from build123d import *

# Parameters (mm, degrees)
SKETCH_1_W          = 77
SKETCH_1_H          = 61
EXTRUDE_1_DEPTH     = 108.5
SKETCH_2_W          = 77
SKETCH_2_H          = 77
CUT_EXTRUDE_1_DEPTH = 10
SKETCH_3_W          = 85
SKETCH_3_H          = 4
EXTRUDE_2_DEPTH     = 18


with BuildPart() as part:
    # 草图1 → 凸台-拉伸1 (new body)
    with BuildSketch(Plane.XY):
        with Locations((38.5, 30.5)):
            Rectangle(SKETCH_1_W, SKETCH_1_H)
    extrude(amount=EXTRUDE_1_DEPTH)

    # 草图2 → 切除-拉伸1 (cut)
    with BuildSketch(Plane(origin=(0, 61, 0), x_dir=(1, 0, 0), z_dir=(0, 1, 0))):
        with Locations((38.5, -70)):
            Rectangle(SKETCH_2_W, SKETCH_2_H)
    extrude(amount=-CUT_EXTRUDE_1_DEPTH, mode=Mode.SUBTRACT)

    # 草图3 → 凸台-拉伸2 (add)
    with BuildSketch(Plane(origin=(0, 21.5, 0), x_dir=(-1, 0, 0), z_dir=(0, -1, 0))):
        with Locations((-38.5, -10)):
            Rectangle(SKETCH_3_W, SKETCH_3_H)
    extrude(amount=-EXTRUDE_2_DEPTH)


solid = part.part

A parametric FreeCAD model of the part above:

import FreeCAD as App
import Part
import Sketcher

V = App.Vector
Q = App.Units.Quantity

doc = App.newDocument("Part")
body = doc.addObject("PartDesign::Body", "Body")

sketch1 = doc.addObject("Sketcher::SketchObject", "Sketch")
body.addObject(sketch1)
sketch1.AttachmentSupport = (doc.XY_Plane, [""])
sketch1.MapMode = "FlatFace"
sketch1.addGeometry([
    Part.LineSegment(V(0, 61, 0), V(0, 0, 0)),
    Part.LineSegment(V(0, 0, 0), V(77, 0, 0)),
    Part.LineSegment(V(77, 0, 0), V(77, 61, 0)),
    Part.LineSegment(V(77, 61, 0), V(0, 61, 0)),
], False)
sketch1.addConstraint([
    Sketcher.Constraint("Coincident", 0, 2, 1, 1),
    Sketcher.Constraint("Coincident", 1, 2, 2, 1),
    Sketcher.Constraint("Coincident", 2, 2, 3, 1),
    Sketcher.Constraint("Coincident", 3, 2, 0, 1),
    Sketcher.Constraint("Vertical", 0),
    Sketcher.Constraint("Horizontal", 1),
    Sketcher.Constraint("Vertical", 2),
    Sketcher.Constraint("Horizontal", 3),
    Sketcher.Constraint("Coincident", 0, 2, -1, 1),
    Sketcher.Constraint("DistanceX", 1, 1, 1, 2, Q("77 mm")),
    Sketcher.Constraint("DistanceY", 0, 2, 0, 1, Q("61 mm")),
])
pad1 = doc.addObject("PartDesign::Pad", "Pad")
body.addObject(pad1)
pad1.Profile = sketch1
pad1.Length = 108.5

sketch2 = doc.addObject("Sketcher::SketchObject", "Sketch001")
body.addObject(sketch2)
sketch2.AttachmentSupport = (doc.XZ_Plane, [""])
sketch2.MapMode = "FlatFace"
sketch2.AttachmentOffset = App.Placement(V(0, 0, -61), App.Rotation())
sketch2.addGeometry([
    Part.LineSegment(V(0, 31.5, 0), V(0, 108.5, 0)),
    Part.LineSegment(V(0, 108.5, 0), V(77, 108.5, 0)),
    Part.LineSegment(V(77, 108.5, 0), V(77, 31.5, 0)),
    Part.LineSegment(V(77, 31.5, 0), V(0, 31.5, 0)),
], False)
sketch2.addConstraint([
    Sketcher.Constraint("Coincident", 0, 2, 1, 1),
    Sketcher.Constraint("Coincident", 1, 2, 2, 1),
    Sketcher.Constraint("Coincident", 2, 2, 3, 1),
    Sketcher.Constraint("Coincident", 3, 2, 0, 1),
    Sketcher.Constraint("Vertical", 0),
    Sketcher.Constraint("Horizontal", 1),
    Sketcher.Constraint("Vertical", 2),
    Sketcher.Constraint("Horizontal", 3),
    Sketcher.Constraint("PointOnObject", 0, 2, -2),
    Sketcher.Constraint("Equal", 3, 0),
    Sketcher.Constraint("DistanceX", 1, 1, 1, 2, Q("77 mm")),
    Sketcher.Constraint("DistanceY", -1, 1, 0, 2, Q("108.5 mm")),
])
pocket1 = doc.addObject("PartDesign::Pocket", "Pocket")
body.addObject(pocket1)
pocket1.Profile = sketch2
pocket1.Length = 10
pocket1.Reversed = True

sketch3 = doc.addObject("Sketcher::SketchObject", "Sketch002")
body.addObject(sketch3)
sketch3.AttachmentSupport = (doc.XZ_Plane, [""])
sketch3.MapMode = "FlatFace"
sketch3.AttachmentOffset = App.Placement(V(0, 0, -21.5), App.Rotation())
sketch3.addGeometry([
    Part.LineSegment(V(81, 8, 0), V(81, 12, 0)),
    Part.LineSegment(V(81, 12, 0), V(-4, 12, 0)),
    Part.LineSegment(V(-4, 12, 0), V(-4, 8, 0)),
    Part.LineSegment(V(-4, 8, 0), V(81, 8, 0)),
], False)
sketch3.addConstraint([
    Sketcher.Constraint("Coincident", 0, 2, 1, 1),
    Sketcher.Constraint("Coincident", 1, 2, 2, 1),
    Sketcher.Constraint("Coincident", 2, 2, 3, 1),
    Sketcher.Constraint("Coincident", 3, 2, 0, 1),
    Sketcher.Constraint("Vertical", 0),
    Sketcher.Constraint("Horizontal", 1),
    Sketcher.Constraint("Vertical", 2),
    Sketcher.Constraint("Horizontal", 3),
    Sketcher.Constraint("DistanceX", 1, 2, 1, 1, Q("85 mm")),
    Sketcher.Constraint("DistanceY", 0, 1, 0, 2, Q("4 mm")),
    Sketcher.Constraint("DistanceX", -1, 1, 0, 2, Q("81 mm")),
    Sketcher.Constraint("DistanceY", -1, 1, 0, 2, Q("12 mm")),
])
pad2 = doc.addObject("PartDesign::Pad", "Pad001")
body.addObject(pad2)
pad2.Profile = sketch3
pad2.Length = 18
pad2.Reversed = True

doc.recompute()
